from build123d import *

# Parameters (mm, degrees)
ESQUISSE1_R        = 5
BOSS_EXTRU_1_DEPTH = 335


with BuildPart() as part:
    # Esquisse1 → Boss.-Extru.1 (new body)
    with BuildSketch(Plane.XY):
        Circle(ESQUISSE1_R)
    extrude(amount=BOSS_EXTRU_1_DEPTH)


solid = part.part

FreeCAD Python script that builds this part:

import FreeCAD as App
import Part
import Sketcher

V = App.Vector

doc = App.newDocument("Part")
body = doc.addObject("PartDesign::Body", "Body")

sketch1 = body.newObject("Sketcher::SketchObject", "Sketch")
sketch1.AttachmentSupport = (doc.getObject("XY_Plane"), [""])
sketch1.MapMode = "FlatFace"
sketch1.addGeometry(Part.Circle(V(0, 0, 0), V(0, 0, 1), 5), False)
sketch1.addConstraint(Sketcher.Constraint("Coincident", 0, 3, -1, 1))
sketch1.addConstraint(Sketcher.Constraint("Diameter", 0, 10.0))
pad1 = body.newObject("PartDesign::Pad", "Pad")
pad1.Profile = sketch1
pad1.Length = 335

doc.recompute()
